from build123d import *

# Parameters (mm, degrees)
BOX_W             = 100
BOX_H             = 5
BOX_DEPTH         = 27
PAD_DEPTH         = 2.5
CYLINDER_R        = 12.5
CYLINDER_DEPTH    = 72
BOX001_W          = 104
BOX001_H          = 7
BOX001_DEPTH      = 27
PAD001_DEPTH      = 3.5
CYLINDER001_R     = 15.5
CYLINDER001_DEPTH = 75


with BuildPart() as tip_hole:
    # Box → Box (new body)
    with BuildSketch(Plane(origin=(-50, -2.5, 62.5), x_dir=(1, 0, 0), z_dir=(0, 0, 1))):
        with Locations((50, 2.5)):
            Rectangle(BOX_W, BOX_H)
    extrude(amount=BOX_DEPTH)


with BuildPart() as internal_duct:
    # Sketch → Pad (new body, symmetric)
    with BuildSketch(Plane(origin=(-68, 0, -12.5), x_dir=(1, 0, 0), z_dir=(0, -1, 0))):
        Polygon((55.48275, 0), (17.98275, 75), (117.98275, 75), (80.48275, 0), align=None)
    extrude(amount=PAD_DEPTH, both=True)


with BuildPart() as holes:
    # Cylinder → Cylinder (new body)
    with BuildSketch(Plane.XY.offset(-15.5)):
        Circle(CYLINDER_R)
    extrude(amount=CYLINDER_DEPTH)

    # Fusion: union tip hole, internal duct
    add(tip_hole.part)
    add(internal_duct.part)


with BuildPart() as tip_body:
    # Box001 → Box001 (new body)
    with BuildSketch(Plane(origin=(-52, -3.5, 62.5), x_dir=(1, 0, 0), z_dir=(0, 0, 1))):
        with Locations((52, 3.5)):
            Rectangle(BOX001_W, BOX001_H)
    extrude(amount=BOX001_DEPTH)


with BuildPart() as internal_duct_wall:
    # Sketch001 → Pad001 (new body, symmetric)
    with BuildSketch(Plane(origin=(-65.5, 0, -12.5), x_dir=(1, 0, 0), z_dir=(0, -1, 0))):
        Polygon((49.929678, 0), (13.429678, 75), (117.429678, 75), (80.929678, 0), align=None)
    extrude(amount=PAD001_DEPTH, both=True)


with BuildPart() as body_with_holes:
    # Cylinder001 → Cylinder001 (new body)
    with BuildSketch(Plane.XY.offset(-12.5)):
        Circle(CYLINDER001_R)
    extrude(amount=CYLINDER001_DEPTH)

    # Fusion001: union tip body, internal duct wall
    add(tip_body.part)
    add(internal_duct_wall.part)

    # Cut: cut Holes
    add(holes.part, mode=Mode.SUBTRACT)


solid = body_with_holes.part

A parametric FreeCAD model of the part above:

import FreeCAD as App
import Part
import Sketcher
from FreeCAD import Vector

doc = App.newDocument("Part")
params = doc.addObject("Spreadsheet::Sheet", "Params")
for row, (alias, value) in enumerate([
    ("sketch1_width", "100 mm"),
    ("sketch1_height", "5 mm"),
    ("pad1_length", "27 mm"),
    ("sketch2_width", "25 mm"),
    ("sketch2_width2", "100 mm"),
    ("pad2_length", "5 mm"),
    ("sketch3_diameter", "25 mm"),
    ("pad3_length", "72 mm"),
    ("sketch4_width", "104 mm"),
    ("sketch4_height", "7 mm"),
    ("pad4_length", "27 mm"),
    ("sketch5_width", "31 mm"),
    ("sketch5_width2", "104 mm"),
    ("pad5_length", "7 mm"),
    ("sketch6_diameter", "31 mm"),
    ("pad6_length", "75 mm"),
], start=1):
    params.set(f"A{row}", alias)
    params.set(f"B{row}", "=" + value)
    params.setAlias(f"B{row}", alias)

body = doc.addObject("PartDesign::Body", "Body")

sketch1 = body.newObject("Sketcher::SketchObject", "Sketch")
sketch1.AttachmentSupport = (doc.getObject("XY_Plane"), [""])
sketch1.MapMode = "FlatFace"
sketch1.AttachmentOffset = App.Placement(Vector(0, 0, 62.5), App.Rotation())
sketch1.addGeometry([
    Part.LineSegment(Vector(-50, 2, 0), Vector(-50, -2, 0)),
    Part.LineSegment(Vector(-50, -2, 0), Vector(50, -2, 0)),
    Part.LineSegment(Vector(50, -2, 0), Vector(50, 2, 0)),
    Part.LineSegment(Vector(50, 2, 0), Vector(-50, 2, 0)),
], False)
sketch1.addConstraint([
    Sketcher.Constraint("Coincident", 0, 2, 1, 1),
    Sketcher.Constraint("Coincident", 1, 2, 2, 1),
    Sketcher.Constraint("Coincident", 2, 2, 3, 1),
    Sketcher.Constraint("Coincident", 3, 2, 0, 1),
    Sketcher.Constraint("Vertical", 0),
    Sketcher.Constraint("Horizontal", 1),
    Sketcher.Constraint("Vertical", 2),
    Sketcher.Constraint("Horizontal", 3),
    Sketcher.Constraint("Symmetric", 0, 2, 2, 2, -1, 1),
    Sketcher.Constraint("DistanceX", 1, 1, 1, 2, 100.0),
    Sketcher.Constraint("DistanceY", 0, 2, 0, 1, 5.0),
])
sketch1.setExpression("Constraints[9]", "Params.sketch1_width")
sketch1.setExpression("Constraints[10]", "Params.sketch1_height")
pad1 = body.newObject("PartDesign::Pad", "Pad")
pad1.Profile = sketch1
pad1.setExpression("Length", "Params.pad1_length")
body2 = doc.addObject("PartDesign::Body", "Body001")

sketch2 = body2.newObject("Sketcher::SketchObject", "Sketch001")
sketch2.AttachmentSupport = (doc.getObject("XZ_Plane001"), [""])
sketch2.MapMode = "FlatFace"
sketch2.addGeometry([
    Part.LineSegment(Vector(-50, 62, 0), Vector(-13, -12, 0)),
    Part.LineSegment(Vector(-13, -12, 0), Vector(12, -12, 0)),
    Part.LineSegment(Vector(12, -12, 0), Vector(50, 62, 0)),
    Part.LineSegment(Vector(50, 62, 0), Vector(-50, 62, 0)),
], False)
sketch2.addConstraint([
    Sketcher.Constraint("Coincident", 0, 2, 1, 1),
    Sketcher.Constraint("Coincident", 1, 2, 2, 1),
    Sketcher.Constraint("Coincident", 2, 2, 3, 1),
    Sketcher.Constraint("Coincident", 3, 2, 0, 1),
    Sketcher.Constraint("Horizontal", 1),
    Sketcher.Constraint("Horizontal", 3),
    Sketcher.Constraint("Equal", 0, 2),
    Sketcher.Constraint("DistanceX", 1, 1, 1, 2, 25.0),
    Sketcher.Constraint("DistanceX", 3, 2, 3, 1, 100.0),
    Sketcher.Constraint("DistanceY", 1, 2, 2, 2, 75.0),
    Sketcher.Constraint("DistanceY", 0, 2, -1, 1, 12.5),
    Sketcher.Constraint("DistanceX", 0, 2, -1, 1, 12.51725),
])
sketch2.setExpression("Constraints[7]", "Params.sketch2_width")
sketch2.setExpression("Constraints[8]", "Params.sketch2_width2")
pad2 = body2.newObject("PartDesign::Pad", "Pad001")
pad2.Profile = sketch2
pad2.setExpression("Length", "Params.pad2_length")
pad2.Midplane = True
body3 = doc.addObject("PartDesign::Body", "Body002")
body3.AllowCompound = True

sketch3 = body3.newObject("Sketcher::SketchObject", "Sketch002")
sketch3.AttachmentSupport = (doc.getObject("XY_Plane002"), [""])
sketch3.MapMode = "FlatFace"
sketch3.AttachmentOffset = App.Placement(Vector(0, 0, -15.5), App.Rotation())
sketch3.addGeometry(Part.Circle(Vector(0, 0, 0), Vector(0, 0, 1), 12), False)
sketch3.addConstraint([
    Sketcher.Constraint("Coincident", 0, 3, -1, 1),
    Sketcher.Constraint("Diameter", 0, 25.0),
])
sketch3.setExpression("Constraints[1]", "Params.sketch3_diameter")
pad3 = body3.newObject("PartDesign::Pad", "Pad002")
pad3.Profile = sketch3
pad3.setExpression("Length", "Params.pad3_length")
doc.recompute()

boolean = body3.newObject("PartDesign::Boolean", "Boolean")
boolean.Type = "Fuse"
boolean.addObjects([body])
doc.recompute()

boolean2 = body3.newObject("PartDesign::Boolean", "Boolean001")
boolean2.Type = "Fuse"
boolean2.addObjects([body2])
body4 = doc.addObject("PartDesign::Body", "Body003")

sketch4 = body4.newObject("Sketcher::SketchObject", "Sketch003")
sketch4.AttachmentSupport = (doc.getObject("XY_Plane003"), [""])
sketch4.MapMode = "FlatFace"
sketch4.AttachmentOffset = App.Placement(Vector(0, 0, 62.5), App.Rotation())
sketch4.addGeometry([
    Part.LineSegment(Vector(-52, 4, 0), Vector(-52, -4, 0)),
    Part.LineSegment(Vector(-52, -4, 0), Vector(52, -4, 0)),
    Part.LineSegment(Vector(52, -4, 0), Vector(52, 4, 0)),
    Part.LineSegment(Vector(52, 4, 0), Vector(-52, 4, 0)),
], False)
sketch4.addConstraint([
    Sketcher.Constraint("Coincident", 0, 2, 1, 1),
    Sketcher.Constraint("Coincident", 1, 2, 2, 1),
    Sketcher.Constraint("Coincident", 2, 2, 3, 1),
    Sketcher.Constraint("Coincident", 3, 2, 0, 1),
    Sketcher.Constraint("Vertical", 0),
    Sketcher.Constraint("Horizontal", 1),
    Sketcher.Constraint("Vertical", 2),
    Sketcher.Constraint("Horizontal", 3),
    Sketcher.Constraint("Symmetric", 0, 2, 2, 2, -1, 1),
    Sketcher.Constraint("DistanceX", 1, 1, 1, 2, 104.0),
    Sketcher.Constraint("DistanceY", 0, 2, 0, 1, 7.0),
])
sketch4.setExpression("Constraints[9]", "Params.sketch4_width")
sketch4.setExpression("Constraints[10]", "Params.sketch4_height")
pad4 = body4.newObject("PartDesign::Pad", "Pad003")
pad4.Profile = sketch4
pad4.setExpression("Length", "Params.pad4_length")
body5 = doc.addObject("PartDesign::Body", "Body004")

sketch5 = body5.newObject("Sketcher::SketchObject", "Sketch004")
sketch5.AttachmentSupport = (doc.getObject("XZ_Plane004"), [""])
sketch5.MapMode = "FlatFace"
sketch5.addGeometry([
    Part.LineSegment(Vector(-52, 62, 0), Vector(-16, -12, 0)),
    Part.LineSegment(Vector(-16, -12, 0), Vector(15, -12, 0)),
    Part.LineSegment(Vector(15, -12, 0), Vector(52, 62, 0)),
    Part.LineSegment(Vector(52, 62, 0), Vector(-52, 62, 0)),
], False)
sketch5.addConstraint([
    Sketcher.Constraint("Coincident", 0, 2, 1, 1),
    Sketcher.Constraint("Coincident", 1, 2, 2, 1),
    Sketcher.Constraint("Coincident", 2, 2, 3, 1),
    Sketcher.Constraint("Coincident", 3, 2, 0, 1),
    Sketcher.Constraint("Horizontal", 1),
    Sketcher.Constraint("Horizontal", 3),
    Sketcher.Constraint("Equal", 0, 2),
    Sketcher.Constraint("DistanceX", 1, 1, 1, 2, 31.0),
    Sketcher.Constraint("DistanceX", 3, 2, 3, 1, 104.0),
    Sketcher.Constraint("DistanceY", 1, 2, 2, 2, 75.0),
    Sketcher.Constraint("DistanceY", 0, 2, -1, 1, 12.5),
    Sketcher.Constraint("DistanceX", -1, 1, 2, 2, 51.929678),
])
sketch5.setExpression("Constraints[7]", "Params.sketch5_width")
sketch5.setExpression("Constraints[8]", "Params.sketch5_width2")
pad5 = body5.newObject("PartDesign::Pad", "Pad004")
pad5.Profile = sketch5
pad5.setExpression("Length", "Params.pad5_length")
pad5.Midplane = True
body6 = doc.addObject("PartDesign::Body", "Body005")

sketch6 = body6.newObject("Sketcher::SketchObject", "Sketch005")
sketch6.AttachmentSupport = (doc.getObject("XY_Plane005"), [""])
sketch6.MapMode = "FlatFace"
sketch6.AttachmentOffset = App.Placement(Vector(0, 0, -12.5), App.Rotation())
sketch6.addGeometry(Part.Circle(Vector(0, 0, 0), Vector(0, 0, 1), 16), False)
sketch6.addConstraint([
    Sketcher.Constraint("Coincident", 0, 3, -1, 1),
    Sketcher.Constraint("Diameter", 0, 31.0),
])
sketch6.setExpression("Constraints[1]", "Params.sketch6_diameter")
pad6 = body6.newObject("PartDesign::Pad", "Pad005")
pad6.Profile = sketch6
pad6.setExpression("Length", "Params.pad6_length")
doc.recompute()

boolean3 = body6.newObject("PartDesign::Boolean", "Boolean002")
boolean3.Type = "Fuse"
boolean3.addObjects([body4])
doc.recompute()

boolean4 = body6.newObject("PartDesign::Boolean", "Boolean003")
boolean4.Type = "Fuse"
boolean4.addObjects([body5])
doc.recompute()

boolean5 = body6.newObject("PartDesign::Boolean", "Boolean004")
boolean5.Type = "Cut"
boolean5.addObjects([body3])

doc.recompute()
